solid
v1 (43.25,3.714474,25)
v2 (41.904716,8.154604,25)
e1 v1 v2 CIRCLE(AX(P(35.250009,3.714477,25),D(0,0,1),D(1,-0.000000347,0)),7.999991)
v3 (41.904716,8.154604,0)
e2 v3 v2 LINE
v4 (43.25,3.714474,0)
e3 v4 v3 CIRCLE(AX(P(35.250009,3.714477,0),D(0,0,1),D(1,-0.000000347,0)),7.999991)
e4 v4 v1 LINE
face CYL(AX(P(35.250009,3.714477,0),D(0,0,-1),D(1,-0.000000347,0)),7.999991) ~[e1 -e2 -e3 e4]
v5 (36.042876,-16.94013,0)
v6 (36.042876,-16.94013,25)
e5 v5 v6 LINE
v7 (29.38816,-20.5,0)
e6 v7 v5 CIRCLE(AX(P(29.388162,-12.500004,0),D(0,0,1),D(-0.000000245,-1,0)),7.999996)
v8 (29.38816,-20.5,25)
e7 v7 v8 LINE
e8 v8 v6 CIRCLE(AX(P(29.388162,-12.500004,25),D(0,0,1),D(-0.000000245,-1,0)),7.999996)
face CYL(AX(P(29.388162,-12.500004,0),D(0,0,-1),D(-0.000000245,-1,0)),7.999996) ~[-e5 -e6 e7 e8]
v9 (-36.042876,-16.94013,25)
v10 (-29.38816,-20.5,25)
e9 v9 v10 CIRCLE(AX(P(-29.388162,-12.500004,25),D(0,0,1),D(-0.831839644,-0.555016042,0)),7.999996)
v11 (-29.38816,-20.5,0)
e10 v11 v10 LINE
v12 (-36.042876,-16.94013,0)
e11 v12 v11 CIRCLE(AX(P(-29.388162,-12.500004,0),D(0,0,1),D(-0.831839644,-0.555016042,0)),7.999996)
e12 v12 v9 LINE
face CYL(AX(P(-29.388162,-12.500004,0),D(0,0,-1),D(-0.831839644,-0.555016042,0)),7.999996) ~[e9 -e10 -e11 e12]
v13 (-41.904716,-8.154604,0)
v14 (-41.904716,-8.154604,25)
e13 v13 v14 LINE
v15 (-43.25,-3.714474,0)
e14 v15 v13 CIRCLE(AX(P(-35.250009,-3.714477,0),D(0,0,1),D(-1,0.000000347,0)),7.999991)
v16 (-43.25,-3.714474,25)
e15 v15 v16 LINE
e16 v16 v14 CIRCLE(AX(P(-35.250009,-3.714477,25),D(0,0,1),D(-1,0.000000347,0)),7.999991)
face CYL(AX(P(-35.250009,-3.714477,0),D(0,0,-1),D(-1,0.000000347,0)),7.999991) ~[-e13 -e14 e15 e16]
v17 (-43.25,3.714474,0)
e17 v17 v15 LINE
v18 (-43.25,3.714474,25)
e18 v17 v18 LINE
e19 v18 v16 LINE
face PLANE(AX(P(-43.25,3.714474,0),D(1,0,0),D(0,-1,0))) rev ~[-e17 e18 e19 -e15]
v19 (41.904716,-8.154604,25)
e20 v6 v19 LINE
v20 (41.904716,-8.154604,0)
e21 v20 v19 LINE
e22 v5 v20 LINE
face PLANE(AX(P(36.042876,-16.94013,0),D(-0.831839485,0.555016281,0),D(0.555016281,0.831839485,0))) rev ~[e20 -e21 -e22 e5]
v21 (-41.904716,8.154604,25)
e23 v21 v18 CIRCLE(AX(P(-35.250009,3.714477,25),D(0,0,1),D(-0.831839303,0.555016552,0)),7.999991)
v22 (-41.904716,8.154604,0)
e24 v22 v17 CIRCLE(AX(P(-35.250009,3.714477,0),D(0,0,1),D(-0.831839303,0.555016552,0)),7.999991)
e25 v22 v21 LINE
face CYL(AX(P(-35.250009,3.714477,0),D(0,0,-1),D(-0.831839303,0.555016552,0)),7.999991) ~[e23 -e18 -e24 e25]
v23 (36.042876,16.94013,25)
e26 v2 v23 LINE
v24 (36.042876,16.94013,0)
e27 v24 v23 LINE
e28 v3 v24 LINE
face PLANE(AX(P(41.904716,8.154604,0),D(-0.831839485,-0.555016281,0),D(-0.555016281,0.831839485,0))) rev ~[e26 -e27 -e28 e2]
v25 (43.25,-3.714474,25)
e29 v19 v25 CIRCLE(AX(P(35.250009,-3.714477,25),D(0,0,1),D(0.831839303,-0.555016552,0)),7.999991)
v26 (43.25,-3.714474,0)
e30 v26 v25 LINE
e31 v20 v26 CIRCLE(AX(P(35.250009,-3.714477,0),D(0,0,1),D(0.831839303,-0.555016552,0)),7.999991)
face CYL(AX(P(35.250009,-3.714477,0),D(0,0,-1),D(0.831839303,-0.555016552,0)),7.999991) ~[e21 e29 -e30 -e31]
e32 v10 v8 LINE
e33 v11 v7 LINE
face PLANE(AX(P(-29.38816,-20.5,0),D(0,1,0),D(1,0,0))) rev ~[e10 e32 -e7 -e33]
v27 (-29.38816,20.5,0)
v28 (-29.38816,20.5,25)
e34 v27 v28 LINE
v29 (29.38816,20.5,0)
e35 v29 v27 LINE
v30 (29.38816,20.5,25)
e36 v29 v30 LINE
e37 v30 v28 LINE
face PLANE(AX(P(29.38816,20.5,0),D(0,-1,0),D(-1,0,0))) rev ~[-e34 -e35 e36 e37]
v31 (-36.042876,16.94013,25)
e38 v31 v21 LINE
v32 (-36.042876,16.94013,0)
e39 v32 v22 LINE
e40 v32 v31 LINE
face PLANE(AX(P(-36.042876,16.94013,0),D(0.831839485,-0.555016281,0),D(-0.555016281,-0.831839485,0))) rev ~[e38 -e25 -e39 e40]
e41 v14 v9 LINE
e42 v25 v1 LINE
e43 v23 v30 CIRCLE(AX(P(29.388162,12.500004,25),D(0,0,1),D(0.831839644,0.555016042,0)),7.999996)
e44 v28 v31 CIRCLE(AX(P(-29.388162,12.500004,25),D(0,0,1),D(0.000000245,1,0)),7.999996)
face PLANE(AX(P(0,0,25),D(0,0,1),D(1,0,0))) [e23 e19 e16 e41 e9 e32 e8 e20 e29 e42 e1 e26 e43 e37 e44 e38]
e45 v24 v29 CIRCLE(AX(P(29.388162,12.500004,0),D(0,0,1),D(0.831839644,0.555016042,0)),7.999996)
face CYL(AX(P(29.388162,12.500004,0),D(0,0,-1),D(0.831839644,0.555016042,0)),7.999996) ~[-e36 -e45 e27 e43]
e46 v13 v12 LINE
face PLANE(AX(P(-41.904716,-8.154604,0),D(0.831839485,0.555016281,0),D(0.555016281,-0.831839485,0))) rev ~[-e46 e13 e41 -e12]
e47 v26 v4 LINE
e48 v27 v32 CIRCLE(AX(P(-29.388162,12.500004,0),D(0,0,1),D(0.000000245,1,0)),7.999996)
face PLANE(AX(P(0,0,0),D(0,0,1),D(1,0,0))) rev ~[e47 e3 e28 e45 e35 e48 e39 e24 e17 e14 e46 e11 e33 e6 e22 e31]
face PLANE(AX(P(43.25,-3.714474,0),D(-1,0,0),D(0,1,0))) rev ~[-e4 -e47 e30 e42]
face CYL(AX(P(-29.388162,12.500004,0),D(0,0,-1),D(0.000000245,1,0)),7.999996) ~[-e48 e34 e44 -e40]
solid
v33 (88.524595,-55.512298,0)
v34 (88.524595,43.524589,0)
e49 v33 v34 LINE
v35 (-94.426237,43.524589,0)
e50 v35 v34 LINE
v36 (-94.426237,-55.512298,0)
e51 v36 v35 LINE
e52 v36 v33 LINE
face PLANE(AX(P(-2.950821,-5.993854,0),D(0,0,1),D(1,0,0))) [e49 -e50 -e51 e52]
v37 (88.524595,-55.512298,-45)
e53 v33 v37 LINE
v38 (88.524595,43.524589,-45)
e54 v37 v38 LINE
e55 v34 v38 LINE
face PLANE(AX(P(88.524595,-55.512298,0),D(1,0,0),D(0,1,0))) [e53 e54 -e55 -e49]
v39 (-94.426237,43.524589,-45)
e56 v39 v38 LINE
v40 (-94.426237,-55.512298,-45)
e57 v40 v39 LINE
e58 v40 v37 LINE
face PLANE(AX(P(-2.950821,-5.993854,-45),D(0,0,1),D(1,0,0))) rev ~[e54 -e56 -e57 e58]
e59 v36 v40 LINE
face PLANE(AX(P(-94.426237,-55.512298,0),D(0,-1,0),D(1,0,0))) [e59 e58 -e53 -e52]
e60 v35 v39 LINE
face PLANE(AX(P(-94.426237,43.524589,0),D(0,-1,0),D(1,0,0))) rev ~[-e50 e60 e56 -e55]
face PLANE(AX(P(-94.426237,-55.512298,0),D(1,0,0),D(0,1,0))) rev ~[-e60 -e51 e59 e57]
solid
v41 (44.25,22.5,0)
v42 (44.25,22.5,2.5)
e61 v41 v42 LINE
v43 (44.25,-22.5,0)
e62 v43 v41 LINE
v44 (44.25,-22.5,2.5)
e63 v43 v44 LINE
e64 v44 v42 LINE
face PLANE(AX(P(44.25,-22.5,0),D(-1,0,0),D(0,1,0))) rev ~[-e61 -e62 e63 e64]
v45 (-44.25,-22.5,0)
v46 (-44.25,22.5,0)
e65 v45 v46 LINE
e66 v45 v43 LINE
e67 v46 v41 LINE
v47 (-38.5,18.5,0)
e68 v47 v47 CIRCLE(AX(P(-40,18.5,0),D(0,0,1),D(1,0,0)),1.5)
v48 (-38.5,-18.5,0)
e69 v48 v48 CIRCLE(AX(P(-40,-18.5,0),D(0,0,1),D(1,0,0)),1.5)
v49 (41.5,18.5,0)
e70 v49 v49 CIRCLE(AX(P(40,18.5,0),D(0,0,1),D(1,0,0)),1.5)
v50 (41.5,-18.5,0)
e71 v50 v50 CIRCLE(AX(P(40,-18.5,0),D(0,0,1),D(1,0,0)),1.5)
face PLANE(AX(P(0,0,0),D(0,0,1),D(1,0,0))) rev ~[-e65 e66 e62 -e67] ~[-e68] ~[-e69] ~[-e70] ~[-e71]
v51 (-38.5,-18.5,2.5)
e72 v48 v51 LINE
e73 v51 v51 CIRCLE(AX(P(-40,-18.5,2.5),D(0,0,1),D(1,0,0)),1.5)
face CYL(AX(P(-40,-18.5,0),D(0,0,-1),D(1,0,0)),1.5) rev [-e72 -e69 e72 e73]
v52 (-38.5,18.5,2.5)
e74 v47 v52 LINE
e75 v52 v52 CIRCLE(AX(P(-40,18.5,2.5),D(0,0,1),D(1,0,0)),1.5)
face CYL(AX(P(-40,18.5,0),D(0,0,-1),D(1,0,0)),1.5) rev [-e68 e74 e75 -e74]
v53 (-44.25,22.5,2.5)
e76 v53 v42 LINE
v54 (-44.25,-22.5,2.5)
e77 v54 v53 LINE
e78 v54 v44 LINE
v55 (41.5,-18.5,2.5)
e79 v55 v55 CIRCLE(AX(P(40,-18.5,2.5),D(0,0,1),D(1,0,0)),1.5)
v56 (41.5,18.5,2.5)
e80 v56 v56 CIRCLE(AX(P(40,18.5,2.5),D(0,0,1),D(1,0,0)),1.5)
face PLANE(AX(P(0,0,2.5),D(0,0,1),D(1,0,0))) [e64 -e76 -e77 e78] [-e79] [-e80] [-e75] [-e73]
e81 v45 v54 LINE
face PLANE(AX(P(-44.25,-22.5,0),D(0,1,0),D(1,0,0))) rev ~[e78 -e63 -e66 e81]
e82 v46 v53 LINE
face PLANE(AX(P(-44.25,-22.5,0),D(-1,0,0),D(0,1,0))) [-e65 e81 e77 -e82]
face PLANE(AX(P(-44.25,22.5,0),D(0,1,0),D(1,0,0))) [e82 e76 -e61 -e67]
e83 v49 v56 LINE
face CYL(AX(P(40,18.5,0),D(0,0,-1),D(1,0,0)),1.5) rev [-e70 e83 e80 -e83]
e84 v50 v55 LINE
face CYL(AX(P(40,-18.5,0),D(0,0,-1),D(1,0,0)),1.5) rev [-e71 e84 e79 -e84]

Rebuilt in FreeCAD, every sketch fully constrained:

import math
import FreeCAD as App
import Part
import Sketcher
from FreeCAD import Vector
Q = App.Units.Quantity


def add_polygon(sketch, points):
    """Adds a closed chain of lines whose ends are joined by coincident constraints."""
    first, n = sketch.GeometryCount, len(points)
    for a, b in zip(points, points[1:] + points[:1]):
        sketch.addGeometry(Part.LineSegment(App.Vector(*a, 0), App.Vector(*b, 0)), False)
    for i in range(n):
        sketch.addConstraint(Sketcher.Constraint("Coincident", first + i, 2, first + (i + 1) % n, 1))

doc = App.newDocument("Part")
body = doc.addObject("PartDesign::Body", "Body")

sketch1 = body.newObject("Sketcher::SketchObject", "Sketch")
sketch1.AttachmentSupport = (doc.getObject("XY_Plane"), [""])
sketch1.MapMode = "FlatFace"
add_polygon(sketch1, [(-94, 44), (-94, -56), (89, -56), (89, 44)])
sketch1.addConstraint([
    Sketcher.Constraint("Vertical", 0),
    Sketcher.Constraint("Horizontal", 1),
    Sketcher.Constraint("Vertical", 2),
    Sketcher.Constraint("Horizontal", 3),
    Sketcher.Constraint("DistanceX", 1, 1, 1, 2, Q("182.950832 mm")),
    Sketcher.Constraint("DistanceY", 0, 2, 0, 1, Q("99.036887 mm")),
    Sketcher.Constraint("DistanceY", -1, 1, 2, 2, Q("43.524589 mm")),
    Sketcher.Constraint("DistanceX", 0, 2, -1, 1, Q("94.426237 mm")),
])
pad1 = body.newObject("PartDesign::Pad", "Pad")
pad1.Profile = sketch1
pad1.Length = 45
pad1.Reversed = True
body2 = doc.addObject("PartDesign::Body", "Body001")

sketch2 = body2.newObject("Sketcher::SketchObject", "Sketch001")
sketch2.AttachmentSupport = (doc.getObject("XY_Plane001"), [""])
sketch2.MapMode = "FlatFace"
add_polygon(sketch2, [(-44.2, 22.5), (-44.2, -22.5), (44.2, -22.5), (44.2, 22.5)])
sketch2.addGeometry(Part.Circle(Vector(-40, -18.5, 0), Vector(0, 0, 1), 1.5), False)
sketch2.addGeometry(Part.Circle(Vector(40, -18.5, 0), Vector(0, 0, 1), 1.5), False)
sketch2.addGeometry(Part.Circle(Vector(-40, 18.5, 0), Vector(0, 0, 1), 1.5), False)
sketch2.addGeometry(Part.Circle(Vector(40, 18.5, 0), Vector(0, 0, 1), 1.5), False)
sketch2.addConstraint([
    Sketcher.Constraint("Vertical", 0),
    Sketcher.Constraint("Horizontal", 1),
    Sketcher.Constraint("Vertical", 2),
    Sketcher.Constraint("Horizontal", 3),
    Sketcher.Constraint("Equal", 4, 5),
    Sketcher.Constraint("Equal", 5, 6),
    Sketcher.Constraint("Equal", 6, 7),
    Sketcher.Constraint("Symmetric", 5, 3, 6, 3, -1, 1),
    Sketcher.Constraint("Symmetric", 4, 3, 7, 3, -1, 1),
    Sketcher.Constraint("Symmetric", 0, 2, 2, 2, -1, 1),
    Sketcher.Constraint("Symmetric", 4, 3, 5, 3, -2),
    Sketcher.Constraint("Diameter", 4, Q("3 mm")),
    Sketcher.Constraint("DistanceY", 0, 2, 0, 1, Q("45 mm")),
    Sketcher.Constraint("DistanceX", 1, 1, 1, 2, Q("88.5 mm")),
    Sketcher.Constraint("DistanceX", 4, 3, -1, 1, Q("40 mm")),
    Sketcher.Constraint("DistanceY", 4, 3, 6, 3, Q("37 mm")),
])
pad2 = body2.newObject("PartDesign::Pad", "Pad001")
pad2.Profile = sketch2
pad2.Length = 2.5
body3 = doc.addObject("PartDesign::Body", "Body002")

sketch3 = body3.newObject("Sketcher::SketchObject", "Sketch002")
sketch3.AttachmentSupport = (doc.getObject("XY_Plane002"), [""])
sketch3.MapMode = "FlatFace"
sketch3.addGeometry([
    Part.LineSegment(Vector(29.4, 20.5, 0), Vector(-29.4, 20.5, 0)),
    Part.ArcOfCircle(Part.Circle(Vector(-29.4, 12.5, 0), Vector(0, 0, 1), 8), math.radians(90), math.radians(146)),
    Part.LineSegment(Vector(-36, 16.9, 0), Vector(-41.9, 8.2, 0)),
    Part.ArcOfCircle(Part.Circle(Vector(-35.3, 3.7, 0), Vector(0, 0, 1), 8), math.radians(146), math.radians(180)),
    Part.LineSegment(Vector(-43.2, 3.7, 0), Vector(-43.2, -3.7, 0)),
    Part.ArcOfCircle(Part.Circle(Vector(-35.3, -3.7, 0), Vector(0, 0, 1), 8), math.radians(180), math.radians(214)),
    Part.LineSegment(Vector(-41.9, -8.2, 0), Vector(-36, -16.9, 0)),
    Part.ArcOfCircle(Part.Circle(Vector(-29.4, -12.5, 0), Vector(0, 0, 1), 8), math.radians(-146), math.radians(-90)),
    Part.LineSegment(Vector(-29.4, -20.5, 0), Vector(29.4, -20.5, 0)),
    Part.ArcOfCircle(Part.Circle(Vector(29.4, -12.5, 0), Vector(0, 0, 1), 8), math.radians(-90), math.radians(-34)),
    Part.LineSegment(Vector(36, -16.9, 0), Vector(41.9, -8.2, 0)),
    Part.ArcOfCircle(Part.Circle(Vector(35.3, -3.7, 0), Vector(0, 0, 1), 8), math.radians(-34), math.radians(0)),
    Part.LineSegment(Vector(43.2, -3.7, 0), Vector(43.2, 3.7, 0)),
    Part.ArcOfCircle(Part.Circle(Vector(35.3, 3.7, 0), Vector(0, 0, 1), 8), math.radians(0), math.radians(34)),
    Part.LineSegment(Vector(41.9, 8.2, 0), Vector(36, 16.9, 0)),
    Part.ArcOfCircle(Part.Circle(Vector(29.4, 12.5, 0), Vector(0, 0, 1), 8), math.radians(34), math.radians(90)),
], False)
sketch3.addConstraint([
    Sketcher.Constraint("Tangent", 0, 2, 1, 1),
    Sketcher.Constraint("Tangent", 1, 2, 2, 1),
    Sketcher.Constraint("Tangent", 2, 2, 3, 1),
    Sketcher.Constraint("Tangent", 3, 2, 4, 1),
    Sketcher.Constraint("Tangent", 4, 2, 5, 1),
    Sketcher.Constraint("Tangent", 5, 2, 6, 1),
    Sketcher.Constraint("Tangent", 6, 2, 7, 1),
    Sketcher.Constraint("Tangent", 7, 2, 8, 1),
    Sketcher.Constraint("Tangent", 8, 2, 9, 1),
    Sketcher.Constraint("Tangent", 9, 2, 10, 1),
    Sketcher.Constraint("Tangent", 10, 2, 11, 1),
    Sketcher.Constraint("Tangent", 11, 2, 12, 1),
    Sketcher.Constraint("Tangent", 12, 2, 13, 1),
    Sketcher.Constraint("Tangent", 13, 2, 14, 1),
    Sketcher.Constraint("Tangent", 14, 2, 15, 1),
    Sketcher.Constraint("Tangent", 15, 2, 0, 1),
    Sketcher.Constraint("Horizontal", 0),
    Sketcher.Constraint("Vertical", 4),
    Sketcher.Constraint("Horizontal", 8),
    Sketcher.Constraint("Vertical", 12),
    Sketcher.Constraint("Equal", 3, 5),
    Sketcher.Constraint("Equal", 1, 7),
    Sketcher.Constraint("Equal", 7, 9),
    Sketcher.Constraint("Equal", 5, 11),
    Sketcher.Constraint("Equal", 11, 13),
    Sketcher.Constraint("Equal", 9, 15),
    Sketcher.Constraint("Symmetric", 1, 3, 9, 3, -1, 1),
    Sketcher.Constraint("Symmetric", 3, 3, 11, 3, -1, 1),
    Sketcher.Constraint("Symmetric", 5, 2, 13, 2, -1, 1),
    Sketcher.Constraint("Symmetric", 6, 2, 9, 2, -2),
    Sketcher.Constraint("DistanceY", -1, 1, 0, 2, Q("20.5 mm")),
    Sketcher.Constraint("DistanceX", 3, 2, -1, 1, Q("43.25 mm")),
    Sketcher.Constraint("Radius", 3, Q("7.999991 mm")),
    Sketcher.Constraint("Radius", 1, Q("7.999996 mm")),
    Sketcher.Constraint("DistanceX", 0, 2, 0, 1, Q("58.77632 mm")),
    Sketcher.Constraint("DistanceY", 2, 2, 1, 3, Q("4.3454 mm")),
])
pad3 = body3.newObject("PartDesign::Pad", "Pad002")
pad3.Profile = sketch3
pad3.Length = 25

doc.recompute()
